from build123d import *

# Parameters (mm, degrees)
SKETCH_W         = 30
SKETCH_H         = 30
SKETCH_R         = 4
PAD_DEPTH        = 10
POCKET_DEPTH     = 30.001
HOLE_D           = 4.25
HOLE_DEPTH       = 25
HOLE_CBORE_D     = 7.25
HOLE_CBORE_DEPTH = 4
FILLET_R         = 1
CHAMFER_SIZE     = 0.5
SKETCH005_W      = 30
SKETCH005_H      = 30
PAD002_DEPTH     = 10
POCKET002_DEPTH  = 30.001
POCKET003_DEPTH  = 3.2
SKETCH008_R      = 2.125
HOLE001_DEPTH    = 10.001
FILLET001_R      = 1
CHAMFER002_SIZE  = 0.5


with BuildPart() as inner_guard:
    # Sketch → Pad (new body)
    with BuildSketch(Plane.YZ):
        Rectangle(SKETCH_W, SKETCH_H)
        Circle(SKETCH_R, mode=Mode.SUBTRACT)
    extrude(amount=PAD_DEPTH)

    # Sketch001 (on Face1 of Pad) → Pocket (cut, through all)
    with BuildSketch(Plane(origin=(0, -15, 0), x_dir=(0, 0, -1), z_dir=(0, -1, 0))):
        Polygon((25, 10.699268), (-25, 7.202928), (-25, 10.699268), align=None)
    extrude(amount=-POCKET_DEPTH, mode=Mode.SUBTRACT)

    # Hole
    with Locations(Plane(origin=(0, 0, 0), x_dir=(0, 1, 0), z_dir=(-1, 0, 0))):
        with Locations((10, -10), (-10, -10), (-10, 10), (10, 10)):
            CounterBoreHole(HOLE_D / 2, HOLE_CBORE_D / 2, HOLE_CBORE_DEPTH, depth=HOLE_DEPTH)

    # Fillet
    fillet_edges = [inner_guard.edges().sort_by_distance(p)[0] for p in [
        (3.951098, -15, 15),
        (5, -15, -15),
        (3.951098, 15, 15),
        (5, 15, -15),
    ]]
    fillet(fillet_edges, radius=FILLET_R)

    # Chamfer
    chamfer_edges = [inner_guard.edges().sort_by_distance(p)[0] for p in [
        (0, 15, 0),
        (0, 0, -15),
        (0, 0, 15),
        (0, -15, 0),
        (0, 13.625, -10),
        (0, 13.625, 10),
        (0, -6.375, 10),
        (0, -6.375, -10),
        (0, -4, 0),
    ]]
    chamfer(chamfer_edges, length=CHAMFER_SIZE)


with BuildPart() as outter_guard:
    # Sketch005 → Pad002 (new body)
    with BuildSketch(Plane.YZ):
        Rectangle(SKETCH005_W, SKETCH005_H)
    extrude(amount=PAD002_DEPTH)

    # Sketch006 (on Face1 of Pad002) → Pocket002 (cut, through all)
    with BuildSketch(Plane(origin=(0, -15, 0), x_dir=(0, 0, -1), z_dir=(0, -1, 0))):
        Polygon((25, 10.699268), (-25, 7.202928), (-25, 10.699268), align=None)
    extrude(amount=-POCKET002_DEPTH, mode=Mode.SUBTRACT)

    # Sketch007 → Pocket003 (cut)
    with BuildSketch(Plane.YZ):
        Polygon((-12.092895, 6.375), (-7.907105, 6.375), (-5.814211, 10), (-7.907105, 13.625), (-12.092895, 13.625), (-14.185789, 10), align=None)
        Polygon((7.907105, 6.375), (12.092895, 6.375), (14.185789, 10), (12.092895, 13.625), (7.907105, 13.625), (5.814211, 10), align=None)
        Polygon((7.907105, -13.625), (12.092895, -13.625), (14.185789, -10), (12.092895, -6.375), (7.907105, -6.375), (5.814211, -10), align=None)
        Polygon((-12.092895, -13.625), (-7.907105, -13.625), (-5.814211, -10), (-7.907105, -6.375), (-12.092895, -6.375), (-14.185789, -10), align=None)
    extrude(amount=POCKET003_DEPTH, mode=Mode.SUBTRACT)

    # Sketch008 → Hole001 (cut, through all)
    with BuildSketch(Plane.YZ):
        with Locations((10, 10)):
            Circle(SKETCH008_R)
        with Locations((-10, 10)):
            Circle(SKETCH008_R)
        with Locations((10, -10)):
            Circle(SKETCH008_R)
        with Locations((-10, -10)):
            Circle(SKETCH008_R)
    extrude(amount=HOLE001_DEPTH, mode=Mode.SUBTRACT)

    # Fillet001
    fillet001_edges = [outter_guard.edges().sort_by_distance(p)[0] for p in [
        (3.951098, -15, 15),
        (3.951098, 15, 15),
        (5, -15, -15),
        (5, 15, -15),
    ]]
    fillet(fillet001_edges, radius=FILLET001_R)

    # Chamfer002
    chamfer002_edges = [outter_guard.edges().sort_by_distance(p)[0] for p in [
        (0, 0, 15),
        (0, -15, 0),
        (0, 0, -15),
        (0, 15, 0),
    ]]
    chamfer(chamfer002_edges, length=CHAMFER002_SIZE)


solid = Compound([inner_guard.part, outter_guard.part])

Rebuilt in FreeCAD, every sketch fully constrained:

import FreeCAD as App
import Part
import Sketcher
from FreeCAD import Vector
Q = App.Units.Quantity


def edges_at(feature, points):
    """Names of the edges that pass closest to the given points."""
    edges = feature.Shape.Edges
    near = lambda p: min(range(len(edges)), key=lambda i: edges[i].distToShape(Part.Vertex(*p))[0])
    return sorted({f"Edge{near(p) + 1}" for p in points})

doc = App.newDocument("Part")
body = doc.addObject("PartDesign::Body", "Body")

sketch1 = body.newObject("Sketcher::SketchObject", "Sketch")
sketch1.AttachmentSupport = (doc.getObject("YZ_Plane"), [""])
sketch1.MapMode = "FlatFace"
sketch1.addGeometry([
    Part.LineSegment(Vector(-15, 15, 0), Vector(-15, -15, 0)),
    Part.LineSegment(Vector(-15, -15, 0), Vector(15, -15, 0)),
    Part.LineSegment(Vector(15, -15, 0), Vector(15, 15, 0)),
    Part.LineSegment(Vector(15, 15, 0), Vector(-15, 15, 0)),
    Part.Circle(Vector(0, 0, 0), Vector(0, 0, 1), 4),
], False)
sketch1.addConstraint([
    Sketcher.Constraint("Coincident", 0, 2, 1, 1),
    Sketcher.Constraint("Coincident", 1, 2, 2, 1),
    Sketcher.Constraint("Coincident", 2, 2, 3, 1),
    Sketcher.Constraint("Coincident", 3, 2, 0, 1),
    Sketcher.Constraint("Vertical", 0),
    Sketcher.Constraint("Horizontal", 1),
    Sketcher.Constraint("Vertical", 2),
    Sketcher.Constraint("Horizontal", 3),
    Sketcher.Constraint("Coincident", 4, 3, -1, 1),
    Sketcher.Constraint("Symmetric", 0, 2, 2, 2, -1, 1),
    Sketcher.Constraint("Equal", 3, 0),
    Sketcher.Constraint("Diameter", 4, Q("8 mm")),
    Sketcher.Constraint("DistanceX", 1, 1, 1, 2, Q("30 mm")),
])
pad1 = body.newObject("PartDesign::Pad", "Pad")
pad1.Profile = sketch1
pad1.Length = 10

sketch2 = body.newObject("Sketcher::SketchObject", "Sketch001")
sketch2.AttachmentSupport = (doc.getObject("XZ_Plane"), [""])
sketch2.MapMode = "FlatFace"
sketch2.AttachmentOffset = App.Placement(Vector(0, 0, 15), App.Rotation())
sketch2.addGeometry([
    Part.LineSegment(Vector(7.2, 25, 0), Vector(10.7, -25, 0)),
    Part.LineSegment(Vector(10.7, -25, 0), Vector(10.7, 25, 0)),
    Part.LineSegment(Vector(10.7, 25, 0), Vector(7.2, 25, 0)),
], False)
sketch2.addConstraint([
    Sketcher.Constraint("Coincident", 0, 2, 1, 1),
    Sketcher.Constraint("Coincident", 1, 2, 2, 1),
    Sketcher.Constraint("Coincident", 2, 2, 0, 1),
    Sketcher.Constraint("Vertical", 1),
    Sketcher.Constraint("Horizontal", 2),
    Sketcher.Constraint("DistanceY", 1, 1, 1, 2, Q("50 mm")),
    Sketcher.Constraint("Angle", 0, Q("-86.000001 deg")),
    Sketcher.Constraint("DistanceY", 0, 2, -1, 1, Q("25 mm")),
    Sketcher.Constraint("DistanceX", -1, 1, 0, 2, Q("10.699268 mm")),
])
pocket1 = body.newObject("PartDesign::Pocket", "Pocket")
pocket1.Profile = sketch2
pocket1.Type = "ThroughAll"

sketch3 = body.newObject("Sketcher::SketchObject", "Sketch002")
sketch3.AttachmentSupport = (doc.getObject("YZ_Plane"), [""])
sketch3.MapMode = "FlatFace"
sketch3.addGeometry([
    Part.Circle(Vector(10, 10, 0), Vector(0, 0, 1), 2.1),
    Part.Circle(Vector(-10, 10, 0), Vector(0, 0, 1), 2.1),
    Part.Circle(Vector(-10, -10, 0), Vector(0, 0, 1), 2.1),
    Part.Circle(Vector(10, -10, 0), Vector(0, 0, 1), 2.1),
], False)
sketch3.addConstraint([
    Sketcher.Constraint("Equal", 0, 1),
    Sketcher.Constraint("Equal", 1, 2),
    Sketcher.Constraint("Equal", 2, 3),
    Sketcher.Constraint("Symmetric", 0, 3, 2, 3, -1, 1),
    Sketcher.Constraint("Symmetric", 1, 3, 3, 3, -1, 1),
    Sketcher.Constraint("Symmetric", 0, 3, 1, 3, -2),
    Sketcher.Constraint("Diameter", 0, Q("4.25 mm")),
    Sketcher.Constraint("DistanceX", -1, 1, 0, 3, Q("10 mm")),
    Sketcher.Constraint("DistanceY", -1, 1, 0, 3, Q("10 mm")),
])
doc.recompute()
hole = body.newObject("PartDesign::Hole", "Hole")
hole.Profile = sketch3
hole.ThreadType = "None"
hole.Diameter = 4.25
hole.DepthType = "Dimension"
hole.Depth = 25
hole.DrillPoint = "Flat"
hole.HoleCutType = "Counterbore"
hole.HoleCutDiameter = 7.25
hole.HoleCutDepth = 4
hole.Reversed = True
doc.recompute()

fillet = body.newObject("PartDesign::Fillet", "Fillet")
fillet.Base = (hole, edges_at(hole, [
    (3.951, -15, 15),
    (5, -15, -15),
    (3.951, 15, 15),
    (5, 15, -15),
]))
fillet.Radius = 1
doc.recompute()

chamfer = body.newObject("PartDesign::Chamfer", "Chamfer")
chamfer.Base = (fillet, edges_at(fillet, [
    (0, 15, 0),
    (0, 0, -15),
    (0, 0, 15),
    (0, -15, 0),
    (0, 6.375, -10),
    (0, 6.375, 10),
    (0, -13.625, 10),
    (0, -13.625, -10),
    (0, -4, 0),
]))
chamfer.Size = 0.5
body2 = doc.addObject("PartDesign::Body", "Body001")

sketch4 = body2.newObject("Sketcher::SketchObject", "Sketch003")
sketch4.AttachmentSupport = (doc.getObject("YZ_Plane001"), [""])
sketch4.MapMode = "FlatFace"
sketch4.addGeometry([
    Part.LineSegment(Vector(-15, 15, 0), Vector(-15, -15, 0)),
    Part.LineSegment(Vector(-15, -15, 0), Vector(15, -15, 0)),
    Part.LineSegment(Vector(15, -15, 0), Vector(15, 15, 0)),
    Part.LineSegment(Vector(15, 15, 0), Vector(-15, 15, 0)),
], False)
sketch4.addConstraint([
    Sketcher.Constraint("Coincident", 0, 2, 1, 1),
    Sketcher.Constraint("Coincident", 1, 2, 2, 1),
    Sketcher.Constraint("Coincident", 2, 2, 3, 1),
    Sketcher.Constraint("Coincident", 3, 2, 0, 1),
    Sketcher.Constraint("Vertical", 0),
    Sketcher.Constraint("Horizontal", 1),
    Sketcher.Constraint("Vertical", 2),
    Sketcher.Constraint("Horizontal", 3),
    Sketcher.Constraint("Symmetric", 0, 2, 2, 2, -1, 1),
    Sketcher.Constraint("Equal", 3, 0),
    Sketcher.Constraint("DistanceX", 1, 1, 1, 2, Q("30 mm")),
])
pad2 = body2.newObject("PartDesign::Pad", "Pad001")
pad2.Profile = sketch4
pad2.Length = 10

sketch5 = body2.newObject("Sketcher::SketchObject", "Sketch004")
sketch5.AttachmentSupport = (doc.getObject("XZ_Plane001"), [""])
sketch5.MapMode = "FlatFace"
sketch5.AttachmentOffset = App.Placement(Vector(0, 0, 15), App.Rotation())
sketch5.addGeometry([
    Part.LineSegment(Vector(7.2, 25, 0), Vector(10.7, -25, 0)),
    Part.LineSegment(Vector(10.7, -25, 0), Vector(10.7, 25, 0)),
    Part.LineSegment(Vector(10.7, 25, 0), Vector(7.2, 25, 0)),
], False)
sketch5.addConstraint([
    Sketcher.Constraint("Coincident", 0, 2, 1, 1),
    Sketcher.Constraint("Coincident", 1, 2, 2, 1),
    Sketcher.Constraint("Coincident", 2, 2, 0, 1),
    Sketcher.Constraint("Vertical", 1),
    Sketcher.Constraint("Horizontal", 2),
    Sketcher.Constraint("DistanceY", 1, 1, 1, 2, Q("50 mm")),
    Sketcher.Constraint("Angle", 0, Q("-86.000001 deg")),
    Sketcher.Constraint("DistanceY", 0, 2, -1, 1, Q("25 mm")),
    Sketcher.Constraint("DistanceX", -1, 1, 0, 2, Q("10.699268 mm")),
])
pocket2 = body2.newObject("PartDesign::Pocket", "Pocket001")
pocket2.Profile = sketch5
pocket2.Type = "ThroughAll"

sketch6 = body2.newObject("Sketcher::SketchObject", "Sketch005")
sketch6.AttachmentSupport = (doc.getObject("YZ_Plane001"), [""])
sketch6.MapMode = "FlatFace"
sketch6.addGeometry([
    Part.LineSegment(Vector(-12.1, 6.4, 0), Vector(-7.9, 6.4, 0)),
    Part.LineSegment(Vector(-7.9, 6.4, 0), Vector(-5.8, 10, 0)),
    Part.LineSegment(Vector(-5.8, 10, 0), Vector(-7.9, 13.6, 0)),
    Part.LineSegment(Vector(-7.9, 13.6, 0), Vector(-12.1, 13.6, 0)),
    Part.LineSegment(Vector(-12.1, 13.6, 0), Vector(-14.2, 10, 0)),
    Part.LineSegment(Vector(-14.2, 10, 0), Vector(-12.1, 6.4, 0)),
    Part.LineSegment(Vector(7.9, 6.4, 0), Vector(12.1, 6.4, 0)),
    Part.LineSegment(Vector(12.1, 6.4, 0), Vector(14.2, 10, 0)),
    Part.LineSegment(Vector(14.2, 10, 0), Vector(12.1, 13.6, 0)),
    Part.LineSegment(Vector(12.1, 13.6, 0), Vector(7.9, 13.6, 0)),
    Part.LineSegment(Vector(7.9, 13.6, 0), Vector(5.8, 10, 0)),
    Part.LineSegment(Vector(5.8, 10, 0), Vector(7.9, 6.4, 0)),
    Part.LineSegment(Vector(7.9, -13.6, 0), Vector(12.1, -13.6, 0)),
    Part.LineSegment(Vector(12.1, -13.6, 0), Vector(14.2, -10, 0)),
    Part.LineSegment(Vector(14.2, -10, 0), Vector(12.1, -6.4, 0)),
    Part.LineSegment(Vector(12.1, -6.4, 0), Vector(7.9, -6.4, 0)),
    Part.LineSegment(Vector(7.9, -6.4, 0), Vector(5.8, -10, 0)),
    Part.LineSegment(Vector(5.8, -10, 0), Vector(7.9, -13.6, 0)),
    Part.LineSegment(Vector(-12.1, -13.6, 0), Vector(-7.9, -13.6, 0)),
    Part.LineSegment(Vector(-7.9, -13.6, 0), Vector(-5.8, -10, 0)),
    Part.LineSegment(Vector(-5.8, -10, 0), Vector(-7.9, -6.4, 0)),
    Part.LineSegment(Vector(-7.9, -6.4, 0), Vector(-12.1, -6.4, 0)),
    Part.LineSegment(Vector(-12.1, -6.4, 0), Vector(-14.2, -10, 0)),
    Part.LineSegment(Vector(-14.2, -10, 0), Vector(-12.1, -13.6, 0)),
], False)
sketch6.addConstraint([
    Sketcher.Constraint("Coincident", 0, 2, 1, 1),
    Sketcher.Constraint("Coincident", 1, 2, 2, 1),
    Sketcher.Constraint("Coincident", 2, 2, 3, 1),
    Sketcher.Constraint("Coincident", 3, 2, 4, 1),
    Sketcher.Constraint("Coincident", 4, 2, 5, 1),
    Sketcher.Constraint("Coincident", 5, 2, 0, 1),
    Sketcher.Constraint("Coincident", 6, 2, 7, 1),
    Sketcher.Constraint("Coincident", 7, 2, 8, 1),
    Sketcher.Constraint("Coincident", 8, 2, 9, 1),
    Sketcher.Constraint("Coincident", 9, 2, 10, 1),
    Sketcher.Constraint("Coincident", 10, 2, 11, 1),
    Sketcher.Constraint("Coincident", 11, 2, 6, 1),
    Sketcher.Constraint("Coincident", 12, 2, 13, 1),
    Sketcher.Constraint("Coincident", 13, 2, 14, 1),
    Sketcher.Constraint("Coincident", 14, 2, 15, 1),
    Sketcher.Constraint("Coincident", 15, 2, 16, 1),
    Sketcher.Constraint("Coincident", 16, 2, 17, 1),
    Sketcher.Constraint("Coincident", 17, 2, 12, 1),
    Sketcher.Constraint("Coincident", 18, 2, 19, 1),
    Sketcher.Constraint("Coincident", 19, 2, 20, 1),
    Sketcher.Constraint("Coincident", 20, 2, 21, 1),
    Sketcher.Constraint("Coincident", 21, 2, 22, 1),
    Sketcher.Constraint("Coincident", 22, 2, 23, 1),
    Sketcher.Constraint("Coincident", 23, 2, 18, 1),
    Sketcher.Constraint("Horizontal", 0),
    Sketcher.Constraint("Horizontal", 3),
    Sketcher.Constraint("Horizontal", 6),
    Sketcher.Constraint("Horizontal", 9),
    Sketcher.Constraint("Horizontal", 12),
    Sketcher.Constraint("Horizontal", 15),
    Sketcher.Constraint("Horizontal", 18),
    Sketcher.Constraint("Horizontal", 21),
    Sketcher.Constraint("Symmetric", 3, 2, 12, 2, -1, 1),
    Sketcher.Constraint("Symmetric", 4, 2, 13, 2, -1, 1),
    Sketcher.Constraint("Symmetric", 5, 2, 14, 2, -1, 1),
    Sketcher.Constraint("Symmetric", 1, 2, 16, 2, -1, 1),
    Sketcher.Constraint("Symmetric", 9, 2, 18, 2, -1, 1),
    Sketcher.Constraint("Symmetric", 10, 2, 19, 2, -1, 1),
    Sketcher.Constraint("Symmetric", 11, 2, 20, 2, -1, 1),
    Sketcher.Constraint("Symmetric", 7, 2, 22, 2, -1, 1),
    Sketcher.Constraint("Symmetric", 5, 2, 6, 2, -2),
    Sketcher.Constraint("Symmetric", 4, 2, 7, 2, -2),
    Sketcher.Constraint("Symmetric", 3, 2, 8, 2, -2),
    Sketcher.Constraint("Symmetric", 1, 2, 10, 2, -2),
    Sketcher.Constraint("Parallel", 1, 4),
    Sketcher.Constraint("Parallel", 2, 5),
    Sketcher.Constraint("Parallel", 4, 7),
    Sketcher.Constraint("Parallel", 7, 10),
    Sketcher.Constraint("Parallel", 8, 11),
    Sketcher.Constraint("Parallel", 13, 16),
    Sketcher.Constraint("Parallel", 14, 17),
    Sketcher.Constraint("Parallel", 19, 22),
    Sketcher.Constraint("Parallel", 20, 23),
    Sketcher.Constraint("Horizontal", 1, 2, 4, 2),
    Sketcher.Constraint("Vertical", 0, 2, 2, 2),
    Sketcher.Constraint("Angle", 1, Q("60.000009 deg")),
    Sketcher.Constraint("DistanceY", -1, 1, 1, 2, Q("10 mm")),
    Sketcher.Constraint("DistanceX", 0, 2, 6, 2, Q("20 mm")),
    Sketcher.Constraint("DistanceY", 0, 2, 2, 2, Q("7.25 mm")),
    Sketcher.Constraint("DistanceX", 0, 1, 0, 2, Q("4.18579 mm")),
])
pocket3 = body2.newObject("PartDesign::Pocket", "Pocket002")
pocket3.Profile = sketch6
pocket3.Length = 3.2
pocket3.Reversed = True

sketch7 = body2.newObject("Sketcher::SketchObject", "Sketch006")
sketch7.AttachmentSupport = (doc.getObject("YZ_Plane001"), [""])
sketch7.MapMode = "FlatFace"
sketch7.addGeometry([
    Part.Circle(Vector(10, 10, 0), Vector(0, 0, 1), 2.1),
    Part.Circle(Vector(-10, 10, 0), Vector(0, 0, 1), 2.1),
    Part.Circle(Vector(10, -10, 0), Vector(0, 0, 1), 2.1),
    Part.Circle(Vector(-10, -10, 0), Vector(0, 0, 1), 2.1),
], False)
sketch7.addConstraint([
    Sketcher.Constraint("Equal", 0, 1),
    Sketcher.Constraint("Equal", 1, 2),
    Sketcher.Constraint("Equal", 2, 3),
    Sketcher.Constraint("Symmetric", 1, 3, 2, 3, -1, 1),
    Sketcher.Constraint("Symmetric", 0, 3, 3, 3, -1, 1),
    Sketcher.Constraint("Symmetric", 0, 3, 1, 3, -2),
    Sketcher.Constraint("Diameter", 0, Q("4.25 mm")),
    Sketcher.Constraint("DistanceX", -1, 1, 0, 3, Q("10 mm")),
    Sketcher.Constraint("DistanceY", -1, 1, 0, 3, Q("10 mm")),
])
pocket4 = body2.newObject("PartDesign::Pocket", "Pocket003")
pocket4.Profile = sketch7
pocket4.Type = "ThroughAll"
pocket4.Reversed = True
doc.recompute()

fillet2 = body2.newObject("PartDesign::Fillet", "Fillet001")
fillet2.Base = (pocket4, edges_at(pocket4, [
    (3.951, -15, 15),
    (3.951, 15, 15),
    (5, -15, -15),
    (5, 15, -15),
]))
fillet2.Radius = 1
doc.recompute()

chamfer2 = body2.newObject("PartDesign::Chamfer", "Chamfer001")
chamfer2.Base = (fillet2, edges_at(fillet2, [
    (0, 0, 15),
    (0, -15, 0),
    (0, 0, -15),
    (0, 15, 0),
]))
chamfer2.Size = 0.5

doc.recompute()
